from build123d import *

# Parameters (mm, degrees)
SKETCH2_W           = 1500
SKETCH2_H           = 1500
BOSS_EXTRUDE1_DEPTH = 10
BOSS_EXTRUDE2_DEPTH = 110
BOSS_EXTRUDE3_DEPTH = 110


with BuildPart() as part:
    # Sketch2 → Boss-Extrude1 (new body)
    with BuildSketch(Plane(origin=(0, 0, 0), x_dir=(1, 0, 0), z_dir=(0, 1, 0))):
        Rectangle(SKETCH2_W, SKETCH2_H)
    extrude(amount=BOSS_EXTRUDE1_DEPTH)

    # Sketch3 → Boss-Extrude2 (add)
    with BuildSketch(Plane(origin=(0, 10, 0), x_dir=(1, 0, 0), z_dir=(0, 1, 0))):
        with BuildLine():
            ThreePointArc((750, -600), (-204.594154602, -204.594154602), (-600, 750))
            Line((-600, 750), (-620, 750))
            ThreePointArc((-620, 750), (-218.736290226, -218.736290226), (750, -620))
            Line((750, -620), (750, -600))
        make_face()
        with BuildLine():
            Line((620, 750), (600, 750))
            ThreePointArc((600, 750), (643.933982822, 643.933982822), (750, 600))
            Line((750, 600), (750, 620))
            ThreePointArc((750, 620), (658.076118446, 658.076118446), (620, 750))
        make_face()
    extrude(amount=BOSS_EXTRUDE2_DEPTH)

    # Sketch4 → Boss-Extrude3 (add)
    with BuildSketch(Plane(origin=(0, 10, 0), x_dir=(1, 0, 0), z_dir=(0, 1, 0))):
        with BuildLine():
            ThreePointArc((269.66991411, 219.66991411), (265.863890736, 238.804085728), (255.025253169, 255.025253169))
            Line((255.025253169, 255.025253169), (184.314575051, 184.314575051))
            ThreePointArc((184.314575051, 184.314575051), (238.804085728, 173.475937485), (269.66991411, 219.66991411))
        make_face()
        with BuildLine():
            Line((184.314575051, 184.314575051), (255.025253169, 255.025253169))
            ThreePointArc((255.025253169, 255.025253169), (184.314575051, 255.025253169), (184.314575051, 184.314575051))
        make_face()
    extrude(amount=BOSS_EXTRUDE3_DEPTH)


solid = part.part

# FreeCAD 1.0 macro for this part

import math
import FreeCAD as App
import Part
import Sketcher

V = App.Vector

doc = App.newDocument("Part")
body = doc.addObject("PartDesign::Body", "Body")

sketch1 = doc.addObject("Sketcher::SketchObject", "Sketch")
body.addObject(sketch1)
sketch1.AttachmentSupport = (doc.XZ_Plane, [""])
sketch1.MapMode = "FlatFace"
sketch1.addGeometry([
    Part.LineSegment(V(-750, -750, 0), V(-750, 750, 0)),
    Part.LineSegment(V(-750, 750, 0), V(750, 750, 0)),
    Part.LineSegment(V(750, 750, 0), V(750, -750, 0)),
    Part.LineSegment(V(750, -750, 0), V(-750, -750, 0)),
], False)
sketch1.addConstraint([
    Sketcher.Constraint("Coincident", 0, 2, 1, 1),
    Sketcher.Constraint("Coincident", 1, 2, 2, 1),
    Sketcher.Constraint("Coincident", 2, 2, 3, 1),
    Sketcher.Constraint("Coincident", 3, 2, 0, 1),
    Sketcher.Constraint("Vertical", 0),
    Sketcher.Constraint("Horizontal", 1),
    Sketcher.Constraint("Vertical", 2),
    Sketcher.Constraint("Horizontal", 3),
    Sketcher.Constraint("Symmetric", 0, 2, 2, 2, -1, 1),
    Sketcher.Constraint("Equal", 3, 0),
    Sketcher.Constraint("DistanceX", 1, 1, 1, 2, 1500.0),
])
pad1 = doc.addObject("PartDesign::Pad", "Pad")
body.addObject(pad1)
pad1.Profile = sketch1
pad1.Length = 10
pad1.Reversed = True

sketch2 = doc.addObject("Sketcher::SketchObject", "Sketch001")
body.addObject(sketch2)
sketch2.AttachmentSupport = (doc.XZ_Plane, [""])
sketch2.MapMode = "FlatFace"
sketch2.AttachmentOffset = App.Placement(V(0, 0, -10), App.Rotation())
sketch2.addGeometry([
    Part.ArcOfCircle(Part.Circle(V(750, -750, 0), V(0, 0, 1), 1350), math.radians(90), math.radians(180)),
    Part.LineSegment(V(-600, -750, 0), V(-620, -750, 0)),
    Part.ArcOfCircle(Part.Circle(V(750, -750, 0), V(0, 0, 1), 1370), math.radians(90), math.radians(180)),
    Part.LineSegment(V(750, 620, 0), V(750, 600, 0)),
    Part.LineSegment(V(620, -750, 0), V(600, -750, 0)),
    Part.ArcOfCircle(Part.Circle(V(750, -750, 0), V(0, 0, 1), 150), math.radians(90), math.radians(180)),
    Part.LineSegment(V(750, -600, 0), V(750, -620, 0)),
    Part.ArcOfCircle(Part.Circle(V(750, -750, 0), V(0, 0, 1), 130), math.radians(90), math.radians(180)),
], False)
sketch2.addConstraint([
    Sketcher.Constraint("Coincident", 0, 2, 1, 1),
    Sketcher.Constraint("Coincident", 1, 2, 2, 2),
    Sketcher.Constraint("Coincident", 2, 1, 3, 1),
    Sketcher.Constraint("Coincident", 3, 2, 0, 1),
    Sketcher.Constraint("Coincident", 4, 2, 5, 2),
    Sketcher.Constraint("Coincident", 5, 1, 6, 1),
    Sketcher.Constraint("Coincident", 6, 2, 7, 1),
    Sketcher.Constraint("Coincident", 7, 2, 4, 1),
    Sketcher.Constraint("Horizontal", 1),
    Sketcher.Constraint("Vertical", 3),
    Sketcher.Constraint("Horizontal", 4),
    Sketcher.Constraint("Vertical", 6),
    Sketcher.Constraint("Coincident", 2, 3, 0, 3),
    Sketcher.Constraint("Coincident", 5, 3, 0, 3),
    Sketcher.Constraint("Coincident", 7, 3, 0, 3),
    Sketcher.Constraint("Symmetric", 1, 2, 7, 2, -2),
    Sketcher.Constraint("Symmetric", 3, 2, 5, 1, -1),
    Sketcher.Constraint("Equal", 1, 4),
    Sketcher.Constraint("Radius", 0, 1350.0),
    Sketcher.Constraint("Radius", 2, 1370.0),
    Sketcher.Constraint("Radius", 5, 150.0),
    Sketcher.Constraint("DistanceY", 1, 2, -1, 1, 750.0),
    Sketcher.Constraint("DistanceX", -1, 1, 3, 2, 750.0),
])
pad2 = doc.addObject("PartDesign::Pad", "Pad001")
body.addObject(pad2)
pad2.Profile = sketch2
pad2.Length = 110
pad2.Reversed = True

sketch3 = doc.addObject("Sketcher::SketchObject", "Sketch002")
body.addObject(sketch3)
sketch3.AttachmentSupport = (doc.XZ_Plane, [""])
sketch3.MapMode = "FlatFace"
sketch3.AttachmentOffset = App.Placement(V(0, 0, -10), App.Rotation())
sketch3.addGeometry([
    Part.ArcOfCircle(Part.Circle(V(220, -220, 0), V(0, 0, 1), 50), math.radians(-45), math.radians(0)),
    Part.ArcOfCircle(Part.Circle(V(220, -220, 0), V(0, 0, 1), 50), math.radians(135), math.radians(315)),
    Part.ArcOfCircle(Part.Circle(V(220, -220, 0), V(0, 0, 1), 50), math.radians(0), math.radians(135)),
], False)
sketch3.addConstraint([
    Sketcher.Constraint("Tangent", 0, 1, 1, 2),
    Sketcher.Constraint("Tangent", 1, 1, 2, 2),
    Sketcher.Constraint("Tangent", 2, 1, 0, 2),
    Sketcher.Constraint("Horizontal", 1, 3, 2, 1),
    Sketcher.Constraint("Radius", 0, 50.0),
    Sketcher.Constraint("DistanceX", 0, 3, 0, 1, 35.355339),
    Sketcher.Constraint("DistanceX", 1, 1, 1, 3, 35.355339),
    Sketcher.Constraint("DistanceX", -1, 1, 0, 3, 219.669914),
    Sketcher.Constraint("DistanceY", 0, 3, -1, 1, 219.669914),
])
pad3 = doc.addObject("PartDesign::Pad", "Pad002")
body.addObject(pad3)
pad3.Profile = sketch3
pad3.Length = 110
pad3.Reversed = True

doc.recompute()
